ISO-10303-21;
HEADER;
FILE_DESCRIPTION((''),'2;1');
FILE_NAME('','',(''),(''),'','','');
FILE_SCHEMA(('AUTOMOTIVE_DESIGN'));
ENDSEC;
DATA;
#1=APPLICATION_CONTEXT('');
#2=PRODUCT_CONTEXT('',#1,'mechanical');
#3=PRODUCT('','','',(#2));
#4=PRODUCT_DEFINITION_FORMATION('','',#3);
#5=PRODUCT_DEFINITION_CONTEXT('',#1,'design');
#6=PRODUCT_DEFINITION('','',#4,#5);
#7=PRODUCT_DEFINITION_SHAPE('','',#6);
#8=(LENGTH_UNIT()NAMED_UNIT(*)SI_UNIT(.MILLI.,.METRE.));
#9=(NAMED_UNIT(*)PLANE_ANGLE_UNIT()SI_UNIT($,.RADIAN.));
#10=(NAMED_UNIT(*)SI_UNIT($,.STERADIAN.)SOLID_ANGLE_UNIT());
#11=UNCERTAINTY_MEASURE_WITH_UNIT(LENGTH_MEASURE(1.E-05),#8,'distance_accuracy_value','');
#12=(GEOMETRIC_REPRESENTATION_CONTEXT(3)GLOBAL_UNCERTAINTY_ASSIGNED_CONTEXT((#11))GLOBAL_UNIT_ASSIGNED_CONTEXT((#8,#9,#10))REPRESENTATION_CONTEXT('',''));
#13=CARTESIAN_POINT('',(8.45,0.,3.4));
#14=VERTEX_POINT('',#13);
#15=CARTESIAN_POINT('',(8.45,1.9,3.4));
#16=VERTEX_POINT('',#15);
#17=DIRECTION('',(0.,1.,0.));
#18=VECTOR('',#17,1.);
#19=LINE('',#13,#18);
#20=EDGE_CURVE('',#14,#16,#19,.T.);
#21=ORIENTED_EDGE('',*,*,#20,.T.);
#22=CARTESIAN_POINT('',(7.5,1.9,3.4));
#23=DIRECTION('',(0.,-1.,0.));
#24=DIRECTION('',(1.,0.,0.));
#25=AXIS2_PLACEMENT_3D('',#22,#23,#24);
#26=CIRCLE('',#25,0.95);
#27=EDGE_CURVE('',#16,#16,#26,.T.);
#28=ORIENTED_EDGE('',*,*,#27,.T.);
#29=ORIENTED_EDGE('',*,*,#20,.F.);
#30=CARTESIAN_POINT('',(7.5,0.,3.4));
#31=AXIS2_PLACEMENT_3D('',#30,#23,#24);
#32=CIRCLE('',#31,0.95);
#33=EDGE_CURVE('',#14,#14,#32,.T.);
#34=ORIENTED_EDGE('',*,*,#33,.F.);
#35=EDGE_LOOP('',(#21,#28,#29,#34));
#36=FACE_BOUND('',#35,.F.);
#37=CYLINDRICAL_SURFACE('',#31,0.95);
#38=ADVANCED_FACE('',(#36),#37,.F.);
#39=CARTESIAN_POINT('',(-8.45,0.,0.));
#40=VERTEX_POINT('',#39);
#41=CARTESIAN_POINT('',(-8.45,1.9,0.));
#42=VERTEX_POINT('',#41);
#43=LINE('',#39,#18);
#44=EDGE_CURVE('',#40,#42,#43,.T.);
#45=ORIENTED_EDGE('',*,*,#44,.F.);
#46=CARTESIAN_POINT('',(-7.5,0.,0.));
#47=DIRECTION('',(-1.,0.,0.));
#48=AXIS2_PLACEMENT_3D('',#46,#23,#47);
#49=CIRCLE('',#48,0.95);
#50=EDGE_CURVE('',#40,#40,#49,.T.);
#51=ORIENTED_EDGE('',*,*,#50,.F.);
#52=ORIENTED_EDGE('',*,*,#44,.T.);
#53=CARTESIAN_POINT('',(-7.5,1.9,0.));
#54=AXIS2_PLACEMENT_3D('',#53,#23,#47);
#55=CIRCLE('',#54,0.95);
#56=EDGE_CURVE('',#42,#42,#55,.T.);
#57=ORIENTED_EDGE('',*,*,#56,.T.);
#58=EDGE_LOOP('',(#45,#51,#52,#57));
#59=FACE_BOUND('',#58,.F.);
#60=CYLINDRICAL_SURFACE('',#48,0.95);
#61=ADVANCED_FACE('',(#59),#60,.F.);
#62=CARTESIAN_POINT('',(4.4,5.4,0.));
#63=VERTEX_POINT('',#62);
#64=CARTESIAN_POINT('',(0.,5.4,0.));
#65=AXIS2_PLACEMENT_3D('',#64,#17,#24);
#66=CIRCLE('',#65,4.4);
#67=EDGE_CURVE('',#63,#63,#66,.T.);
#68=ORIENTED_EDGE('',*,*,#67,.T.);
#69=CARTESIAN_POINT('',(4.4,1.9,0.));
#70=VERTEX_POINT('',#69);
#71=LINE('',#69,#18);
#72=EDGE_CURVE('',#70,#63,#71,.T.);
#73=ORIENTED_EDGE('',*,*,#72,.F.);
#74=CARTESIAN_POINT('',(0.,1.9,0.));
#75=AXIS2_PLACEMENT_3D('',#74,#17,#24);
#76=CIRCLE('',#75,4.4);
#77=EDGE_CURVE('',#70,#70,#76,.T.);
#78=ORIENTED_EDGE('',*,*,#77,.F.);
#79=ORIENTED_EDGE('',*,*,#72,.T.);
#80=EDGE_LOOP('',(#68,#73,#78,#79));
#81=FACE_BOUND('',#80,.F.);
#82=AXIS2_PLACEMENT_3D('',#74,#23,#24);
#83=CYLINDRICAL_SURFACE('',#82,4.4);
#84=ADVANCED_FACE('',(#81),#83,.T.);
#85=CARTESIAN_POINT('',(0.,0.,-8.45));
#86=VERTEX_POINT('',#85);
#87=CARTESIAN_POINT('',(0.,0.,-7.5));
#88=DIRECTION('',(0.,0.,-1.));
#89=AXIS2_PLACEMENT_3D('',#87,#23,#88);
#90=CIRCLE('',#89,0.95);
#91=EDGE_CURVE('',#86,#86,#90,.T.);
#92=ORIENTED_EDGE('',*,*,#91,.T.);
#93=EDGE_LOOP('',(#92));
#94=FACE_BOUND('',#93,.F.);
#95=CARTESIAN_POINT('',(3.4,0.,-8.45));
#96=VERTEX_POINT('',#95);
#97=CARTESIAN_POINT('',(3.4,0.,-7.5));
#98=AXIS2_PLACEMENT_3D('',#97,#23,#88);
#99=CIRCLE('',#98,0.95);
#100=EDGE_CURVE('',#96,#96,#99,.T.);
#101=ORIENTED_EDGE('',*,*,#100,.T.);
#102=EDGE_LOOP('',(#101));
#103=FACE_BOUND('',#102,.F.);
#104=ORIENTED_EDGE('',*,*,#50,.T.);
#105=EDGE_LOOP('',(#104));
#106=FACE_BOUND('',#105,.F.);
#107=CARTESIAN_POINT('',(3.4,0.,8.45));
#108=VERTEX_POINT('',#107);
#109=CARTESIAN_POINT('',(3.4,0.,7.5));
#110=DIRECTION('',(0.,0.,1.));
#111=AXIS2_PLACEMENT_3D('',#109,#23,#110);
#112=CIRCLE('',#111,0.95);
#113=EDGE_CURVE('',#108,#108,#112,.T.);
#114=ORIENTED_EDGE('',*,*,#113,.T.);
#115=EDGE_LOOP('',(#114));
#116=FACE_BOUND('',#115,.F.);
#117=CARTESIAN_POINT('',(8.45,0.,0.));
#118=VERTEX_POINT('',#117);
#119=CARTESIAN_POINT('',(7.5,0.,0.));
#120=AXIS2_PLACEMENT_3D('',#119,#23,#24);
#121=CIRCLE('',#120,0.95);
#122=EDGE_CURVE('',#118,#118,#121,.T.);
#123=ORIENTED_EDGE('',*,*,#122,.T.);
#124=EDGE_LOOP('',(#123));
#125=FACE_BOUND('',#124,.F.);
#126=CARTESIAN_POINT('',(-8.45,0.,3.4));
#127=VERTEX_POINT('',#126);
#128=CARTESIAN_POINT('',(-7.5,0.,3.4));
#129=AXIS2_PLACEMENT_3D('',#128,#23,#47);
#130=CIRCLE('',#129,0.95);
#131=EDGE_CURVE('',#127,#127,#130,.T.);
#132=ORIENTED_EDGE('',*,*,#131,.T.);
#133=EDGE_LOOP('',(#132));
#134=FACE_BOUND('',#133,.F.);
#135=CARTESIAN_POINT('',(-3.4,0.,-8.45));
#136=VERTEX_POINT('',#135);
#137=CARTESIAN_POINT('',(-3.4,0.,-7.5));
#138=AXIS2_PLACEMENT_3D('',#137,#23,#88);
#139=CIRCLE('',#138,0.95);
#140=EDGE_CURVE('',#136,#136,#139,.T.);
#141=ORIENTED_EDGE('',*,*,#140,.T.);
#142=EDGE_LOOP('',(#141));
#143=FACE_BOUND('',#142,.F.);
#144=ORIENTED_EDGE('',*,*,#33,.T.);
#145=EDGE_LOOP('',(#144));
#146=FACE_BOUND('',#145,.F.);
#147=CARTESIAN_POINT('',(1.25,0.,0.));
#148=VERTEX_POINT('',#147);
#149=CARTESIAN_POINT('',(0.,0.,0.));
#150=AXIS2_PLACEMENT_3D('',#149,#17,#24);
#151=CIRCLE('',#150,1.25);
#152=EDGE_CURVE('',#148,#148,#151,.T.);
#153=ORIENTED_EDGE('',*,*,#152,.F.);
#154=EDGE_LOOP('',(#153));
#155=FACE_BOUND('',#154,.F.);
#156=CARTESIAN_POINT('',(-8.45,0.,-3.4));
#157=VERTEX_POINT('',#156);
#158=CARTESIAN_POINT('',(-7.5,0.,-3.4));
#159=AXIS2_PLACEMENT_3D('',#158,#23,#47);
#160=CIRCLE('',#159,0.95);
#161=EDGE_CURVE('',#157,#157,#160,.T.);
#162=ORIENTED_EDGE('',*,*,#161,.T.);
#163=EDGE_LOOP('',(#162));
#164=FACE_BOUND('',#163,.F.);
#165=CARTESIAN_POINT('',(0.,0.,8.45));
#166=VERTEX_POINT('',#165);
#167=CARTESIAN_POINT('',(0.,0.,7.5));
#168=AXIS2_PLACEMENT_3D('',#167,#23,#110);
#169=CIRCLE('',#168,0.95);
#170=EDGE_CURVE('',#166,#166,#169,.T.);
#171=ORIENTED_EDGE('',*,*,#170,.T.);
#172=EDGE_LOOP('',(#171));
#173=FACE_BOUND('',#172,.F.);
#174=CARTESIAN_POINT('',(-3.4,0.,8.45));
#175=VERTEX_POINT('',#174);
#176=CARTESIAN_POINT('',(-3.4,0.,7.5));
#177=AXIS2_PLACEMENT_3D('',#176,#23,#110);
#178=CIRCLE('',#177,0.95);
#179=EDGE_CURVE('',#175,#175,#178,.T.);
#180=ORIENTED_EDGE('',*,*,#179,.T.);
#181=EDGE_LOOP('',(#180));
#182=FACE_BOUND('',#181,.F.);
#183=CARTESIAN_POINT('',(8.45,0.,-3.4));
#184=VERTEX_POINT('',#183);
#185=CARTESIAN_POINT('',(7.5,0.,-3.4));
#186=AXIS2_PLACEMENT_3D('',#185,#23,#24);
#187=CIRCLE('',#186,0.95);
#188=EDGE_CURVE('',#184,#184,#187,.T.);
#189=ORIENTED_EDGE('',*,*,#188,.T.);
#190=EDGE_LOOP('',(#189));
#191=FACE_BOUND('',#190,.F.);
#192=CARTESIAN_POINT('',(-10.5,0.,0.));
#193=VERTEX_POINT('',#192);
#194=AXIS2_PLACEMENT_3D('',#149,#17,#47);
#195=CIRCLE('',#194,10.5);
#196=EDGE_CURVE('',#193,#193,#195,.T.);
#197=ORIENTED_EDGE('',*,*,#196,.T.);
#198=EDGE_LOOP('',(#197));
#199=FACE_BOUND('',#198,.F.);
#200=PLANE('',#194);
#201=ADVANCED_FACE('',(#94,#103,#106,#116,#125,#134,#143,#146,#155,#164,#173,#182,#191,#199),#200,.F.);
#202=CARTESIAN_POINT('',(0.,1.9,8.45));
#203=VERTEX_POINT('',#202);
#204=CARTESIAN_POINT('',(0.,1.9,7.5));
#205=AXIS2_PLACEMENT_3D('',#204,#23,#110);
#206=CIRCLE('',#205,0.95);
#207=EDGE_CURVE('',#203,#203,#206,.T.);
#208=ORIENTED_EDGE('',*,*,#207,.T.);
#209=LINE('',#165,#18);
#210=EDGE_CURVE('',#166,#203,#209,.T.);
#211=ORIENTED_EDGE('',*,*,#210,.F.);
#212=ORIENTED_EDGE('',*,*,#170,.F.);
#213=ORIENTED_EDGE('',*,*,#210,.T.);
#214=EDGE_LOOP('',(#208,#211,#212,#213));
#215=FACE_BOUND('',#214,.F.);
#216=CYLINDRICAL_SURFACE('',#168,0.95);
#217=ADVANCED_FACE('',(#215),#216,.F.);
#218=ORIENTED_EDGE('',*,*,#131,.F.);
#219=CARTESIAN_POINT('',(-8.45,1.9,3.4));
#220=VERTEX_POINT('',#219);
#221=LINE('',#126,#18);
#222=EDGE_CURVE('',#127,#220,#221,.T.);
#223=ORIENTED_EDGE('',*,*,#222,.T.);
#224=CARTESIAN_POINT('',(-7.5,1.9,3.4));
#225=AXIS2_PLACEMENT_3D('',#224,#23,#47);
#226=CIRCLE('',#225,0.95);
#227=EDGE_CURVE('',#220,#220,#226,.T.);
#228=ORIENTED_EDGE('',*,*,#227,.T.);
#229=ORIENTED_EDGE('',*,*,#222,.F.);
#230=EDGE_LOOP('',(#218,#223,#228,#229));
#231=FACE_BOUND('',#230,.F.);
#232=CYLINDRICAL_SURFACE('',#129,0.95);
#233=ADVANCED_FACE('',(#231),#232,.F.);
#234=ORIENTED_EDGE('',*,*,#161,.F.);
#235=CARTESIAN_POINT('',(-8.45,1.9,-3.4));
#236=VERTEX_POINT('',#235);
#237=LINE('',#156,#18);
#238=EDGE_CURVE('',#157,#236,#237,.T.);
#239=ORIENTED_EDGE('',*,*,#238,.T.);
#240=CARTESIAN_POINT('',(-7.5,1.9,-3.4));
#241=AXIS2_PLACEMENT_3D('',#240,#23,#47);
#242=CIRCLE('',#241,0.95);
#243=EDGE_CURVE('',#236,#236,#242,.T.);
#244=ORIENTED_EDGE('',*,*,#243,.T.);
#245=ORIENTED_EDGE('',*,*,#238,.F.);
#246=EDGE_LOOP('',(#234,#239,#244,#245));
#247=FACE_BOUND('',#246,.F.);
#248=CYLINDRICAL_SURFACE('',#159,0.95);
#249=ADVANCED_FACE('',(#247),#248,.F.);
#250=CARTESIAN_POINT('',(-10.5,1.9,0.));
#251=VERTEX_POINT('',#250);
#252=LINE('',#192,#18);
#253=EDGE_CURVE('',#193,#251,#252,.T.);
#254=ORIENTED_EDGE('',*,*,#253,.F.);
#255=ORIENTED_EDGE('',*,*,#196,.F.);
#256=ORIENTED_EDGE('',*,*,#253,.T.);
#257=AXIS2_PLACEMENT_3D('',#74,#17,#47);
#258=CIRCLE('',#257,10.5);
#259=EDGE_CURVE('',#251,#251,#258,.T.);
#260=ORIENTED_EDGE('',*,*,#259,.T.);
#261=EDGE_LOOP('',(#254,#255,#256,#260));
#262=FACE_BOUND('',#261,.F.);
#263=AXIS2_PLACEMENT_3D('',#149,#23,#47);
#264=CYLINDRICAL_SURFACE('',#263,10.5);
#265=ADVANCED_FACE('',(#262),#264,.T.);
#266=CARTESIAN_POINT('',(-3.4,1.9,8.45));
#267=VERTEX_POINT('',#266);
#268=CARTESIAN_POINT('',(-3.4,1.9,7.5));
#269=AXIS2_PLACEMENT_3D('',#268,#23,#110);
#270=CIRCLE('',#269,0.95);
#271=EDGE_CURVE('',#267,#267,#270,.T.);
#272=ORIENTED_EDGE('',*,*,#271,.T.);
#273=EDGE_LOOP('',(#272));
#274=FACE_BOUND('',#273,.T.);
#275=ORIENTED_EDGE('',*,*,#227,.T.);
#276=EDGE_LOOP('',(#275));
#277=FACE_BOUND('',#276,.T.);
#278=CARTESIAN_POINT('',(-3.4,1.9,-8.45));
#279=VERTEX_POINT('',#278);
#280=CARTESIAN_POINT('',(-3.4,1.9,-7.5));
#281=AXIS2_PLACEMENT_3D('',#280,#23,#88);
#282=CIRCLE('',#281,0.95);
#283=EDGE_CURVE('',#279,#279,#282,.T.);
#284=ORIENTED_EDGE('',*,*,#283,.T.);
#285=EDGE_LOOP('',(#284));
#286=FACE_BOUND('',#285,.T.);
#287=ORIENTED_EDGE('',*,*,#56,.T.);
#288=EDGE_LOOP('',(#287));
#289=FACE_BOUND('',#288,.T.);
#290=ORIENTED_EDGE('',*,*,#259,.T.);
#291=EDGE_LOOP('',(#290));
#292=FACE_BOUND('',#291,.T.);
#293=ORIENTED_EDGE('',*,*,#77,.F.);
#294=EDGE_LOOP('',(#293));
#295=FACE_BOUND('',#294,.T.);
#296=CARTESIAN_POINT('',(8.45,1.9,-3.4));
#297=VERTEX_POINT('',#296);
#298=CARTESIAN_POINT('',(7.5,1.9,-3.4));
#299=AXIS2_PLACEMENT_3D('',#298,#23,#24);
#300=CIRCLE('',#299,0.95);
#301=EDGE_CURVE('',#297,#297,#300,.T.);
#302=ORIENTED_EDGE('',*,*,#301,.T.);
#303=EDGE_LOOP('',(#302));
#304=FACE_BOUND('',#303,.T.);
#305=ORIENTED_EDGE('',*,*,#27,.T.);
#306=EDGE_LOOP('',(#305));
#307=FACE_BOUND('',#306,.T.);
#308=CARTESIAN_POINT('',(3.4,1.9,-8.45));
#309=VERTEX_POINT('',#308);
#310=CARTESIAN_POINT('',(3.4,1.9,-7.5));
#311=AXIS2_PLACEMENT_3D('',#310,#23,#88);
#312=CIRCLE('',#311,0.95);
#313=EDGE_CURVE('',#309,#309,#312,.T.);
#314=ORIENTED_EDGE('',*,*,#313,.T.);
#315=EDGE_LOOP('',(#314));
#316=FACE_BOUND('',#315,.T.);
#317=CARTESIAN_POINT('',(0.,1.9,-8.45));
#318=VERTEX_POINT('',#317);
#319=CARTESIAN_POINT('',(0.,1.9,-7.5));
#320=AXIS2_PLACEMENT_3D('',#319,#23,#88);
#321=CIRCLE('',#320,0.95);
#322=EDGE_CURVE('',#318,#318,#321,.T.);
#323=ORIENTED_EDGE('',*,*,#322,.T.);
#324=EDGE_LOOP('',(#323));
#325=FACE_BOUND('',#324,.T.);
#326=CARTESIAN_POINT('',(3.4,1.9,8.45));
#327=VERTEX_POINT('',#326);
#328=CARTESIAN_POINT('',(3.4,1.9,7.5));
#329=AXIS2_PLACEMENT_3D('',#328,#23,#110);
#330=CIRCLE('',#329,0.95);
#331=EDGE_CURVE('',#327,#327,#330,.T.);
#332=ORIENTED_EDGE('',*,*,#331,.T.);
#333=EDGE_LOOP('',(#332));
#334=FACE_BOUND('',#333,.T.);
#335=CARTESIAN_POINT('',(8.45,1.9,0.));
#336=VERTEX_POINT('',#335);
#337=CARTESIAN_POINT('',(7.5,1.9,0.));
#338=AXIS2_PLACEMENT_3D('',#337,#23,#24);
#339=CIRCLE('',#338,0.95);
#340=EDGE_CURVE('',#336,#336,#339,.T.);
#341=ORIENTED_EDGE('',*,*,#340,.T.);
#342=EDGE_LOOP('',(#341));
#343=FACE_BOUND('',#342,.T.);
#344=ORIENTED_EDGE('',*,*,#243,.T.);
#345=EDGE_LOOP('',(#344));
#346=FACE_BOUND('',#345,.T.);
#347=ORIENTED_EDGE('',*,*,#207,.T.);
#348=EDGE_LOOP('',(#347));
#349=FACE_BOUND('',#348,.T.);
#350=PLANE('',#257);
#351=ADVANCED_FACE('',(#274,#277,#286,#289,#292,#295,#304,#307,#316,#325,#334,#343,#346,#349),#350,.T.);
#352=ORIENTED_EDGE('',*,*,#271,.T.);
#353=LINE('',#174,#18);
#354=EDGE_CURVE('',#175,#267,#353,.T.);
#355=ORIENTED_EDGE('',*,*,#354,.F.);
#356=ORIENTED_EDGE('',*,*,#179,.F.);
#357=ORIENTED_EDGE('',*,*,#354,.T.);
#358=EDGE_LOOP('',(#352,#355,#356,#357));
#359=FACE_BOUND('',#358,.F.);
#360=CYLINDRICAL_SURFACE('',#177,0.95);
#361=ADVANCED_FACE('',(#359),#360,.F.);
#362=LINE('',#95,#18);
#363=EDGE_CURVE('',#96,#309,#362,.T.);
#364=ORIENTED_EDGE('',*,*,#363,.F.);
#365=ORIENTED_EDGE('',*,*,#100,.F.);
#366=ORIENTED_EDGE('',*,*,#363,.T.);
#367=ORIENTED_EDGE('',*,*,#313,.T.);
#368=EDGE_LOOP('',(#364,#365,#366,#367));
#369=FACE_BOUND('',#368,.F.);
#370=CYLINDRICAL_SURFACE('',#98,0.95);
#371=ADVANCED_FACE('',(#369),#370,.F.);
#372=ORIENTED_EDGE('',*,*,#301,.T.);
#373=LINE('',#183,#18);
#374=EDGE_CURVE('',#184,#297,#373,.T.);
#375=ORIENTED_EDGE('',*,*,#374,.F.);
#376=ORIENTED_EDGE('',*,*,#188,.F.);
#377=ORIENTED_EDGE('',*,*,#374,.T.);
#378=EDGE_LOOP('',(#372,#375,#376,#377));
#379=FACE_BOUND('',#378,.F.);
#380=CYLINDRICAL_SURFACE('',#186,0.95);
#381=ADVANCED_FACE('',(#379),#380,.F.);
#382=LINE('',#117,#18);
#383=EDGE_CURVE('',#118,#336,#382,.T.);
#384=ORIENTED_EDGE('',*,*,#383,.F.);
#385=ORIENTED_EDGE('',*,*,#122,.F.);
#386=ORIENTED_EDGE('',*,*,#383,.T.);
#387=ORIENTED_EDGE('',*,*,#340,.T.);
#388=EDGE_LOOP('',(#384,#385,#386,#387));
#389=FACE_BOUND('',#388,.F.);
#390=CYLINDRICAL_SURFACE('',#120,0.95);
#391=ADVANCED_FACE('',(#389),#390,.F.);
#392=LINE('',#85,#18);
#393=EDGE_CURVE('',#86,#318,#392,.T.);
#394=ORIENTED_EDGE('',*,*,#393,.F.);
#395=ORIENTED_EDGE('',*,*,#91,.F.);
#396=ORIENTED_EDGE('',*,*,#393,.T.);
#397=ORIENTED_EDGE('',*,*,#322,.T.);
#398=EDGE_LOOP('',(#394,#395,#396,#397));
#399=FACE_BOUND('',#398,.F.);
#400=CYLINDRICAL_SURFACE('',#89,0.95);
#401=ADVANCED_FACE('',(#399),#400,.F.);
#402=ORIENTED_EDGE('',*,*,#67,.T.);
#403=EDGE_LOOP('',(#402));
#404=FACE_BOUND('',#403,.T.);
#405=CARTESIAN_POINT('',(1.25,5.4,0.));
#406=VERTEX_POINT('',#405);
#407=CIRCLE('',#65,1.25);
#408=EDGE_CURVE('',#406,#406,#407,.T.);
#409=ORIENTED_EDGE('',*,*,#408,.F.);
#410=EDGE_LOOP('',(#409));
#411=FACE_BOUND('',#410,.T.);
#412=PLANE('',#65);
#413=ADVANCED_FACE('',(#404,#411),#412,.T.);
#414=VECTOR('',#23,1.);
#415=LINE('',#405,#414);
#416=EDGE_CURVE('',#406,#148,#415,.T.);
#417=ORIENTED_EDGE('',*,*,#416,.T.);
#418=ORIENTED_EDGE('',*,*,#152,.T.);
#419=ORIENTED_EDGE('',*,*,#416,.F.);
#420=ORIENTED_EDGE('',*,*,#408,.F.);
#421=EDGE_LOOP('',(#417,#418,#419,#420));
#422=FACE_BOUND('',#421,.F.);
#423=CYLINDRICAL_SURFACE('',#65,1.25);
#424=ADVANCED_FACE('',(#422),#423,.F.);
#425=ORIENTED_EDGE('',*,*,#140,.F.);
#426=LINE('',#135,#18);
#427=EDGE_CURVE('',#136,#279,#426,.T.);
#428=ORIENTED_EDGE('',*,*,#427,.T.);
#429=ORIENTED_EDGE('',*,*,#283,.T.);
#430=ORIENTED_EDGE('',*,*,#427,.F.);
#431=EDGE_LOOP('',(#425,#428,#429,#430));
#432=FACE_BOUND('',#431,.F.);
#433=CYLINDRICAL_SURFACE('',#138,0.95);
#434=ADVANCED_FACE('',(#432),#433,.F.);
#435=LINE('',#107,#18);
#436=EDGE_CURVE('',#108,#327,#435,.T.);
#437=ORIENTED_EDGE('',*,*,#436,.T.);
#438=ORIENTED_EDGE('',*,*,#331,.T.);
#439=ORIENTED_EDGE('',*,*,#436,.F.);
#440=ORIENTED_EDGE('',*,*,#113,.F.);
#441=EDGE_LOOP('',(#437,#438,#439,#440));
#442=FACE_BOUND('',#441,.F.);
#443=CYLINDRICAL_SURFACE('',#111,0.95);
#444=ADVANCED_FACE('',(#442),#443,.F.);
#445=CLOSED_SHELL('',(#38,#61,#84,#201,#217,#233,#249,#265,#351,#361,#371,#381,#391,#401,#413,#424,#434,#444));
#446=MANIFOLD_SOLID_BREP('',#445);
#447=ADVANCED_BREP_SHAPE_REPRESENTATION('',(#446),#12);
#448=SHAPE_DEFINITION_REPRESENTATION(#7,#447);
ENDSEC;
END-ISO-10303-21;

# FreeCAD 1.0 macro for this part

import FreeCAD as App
import Part
import Sketcher

doc = App.newDocument("Part")
body = doc.addObject("PartDesign::Body", "Body")

# Sketch on XZ plane
sketch1 = body.newObject("Sketcher::SketchObject", "Sketch")
sketch1.AttachmentSupport = (doc.getObject("XZ_Plane"), [""])
sketch1.MapMode = "FlatFace"
sketch1.addGeometry(Part.Circle(App.Vector(0, 0, 0), App.Vector(0, 0, 1), 10.5), False)
sketch1.addConstraint(Sketcher.Constraint("Coincident", 0, 3, -1, 1))
sketch1.addConstraint(Sketcher.Constraint("Diameter", 0, 21.0))
pad1 = body.newObject("PartDesign::Pad", "Pad")
pad1.Profile = sketch1
pad1.Length = 1.9
pad1.Reversed = True

# Sketch on XZ plane
sketch2 = body.newObject("Sketcher::SketchObject", "Sketch001")
sketch2.AttachmentSupport = (doc.getObject("XZ_Plane"), [""])
sketch2.MapMode = "FlatFace"
sketch2.AttachmentOffset = App.Placement(App.Vector(0, 0, -1.9), App.Rotation())
sketch2.addGeometry(Part.Circle(App.Vector(0, 0, 0), App.Vector(0, 0, 1), 4.4), False)
sketch2.addConstraint(Sketcher.Constraint("Coincident", 0, 3, -1, 1))
sketch2.addConstraint(Sketcher.Constraint("Diameter", 0, 8.8))
pad2 = body.newObject("PartDesign::Pad", "Pad001")
pad2.Profile = sketch2
pad2.Length = 3.5
pad2.Reversed = True

# Sketch on XZ plane
sketch3 = body.newObject("Sketcher::SketchObject", "Sketch002")
sketch3.AttachmentSupport = (doc.getObject("XZ_Plane"), [""])
sketch3.MapMode = "FlatFace"
sketch3.AttachmentOffset = App.Placement(App.Vector(0, 0, -5.4), App.Rotation())
sketch3.addGeometry(Part.Circle(App.Vector(0, 0, 0), App.Vector(0, 0, 1), 1.25), False)
sketch3.addConstraint(Sketcher.Constraint("Coincident", 0, 3, -1, 1))
sketch3.addConstraint(Sketcher.Constraint("Diameter", 0, 2.5))
pocket1 = body.newObject("PartDesign::Pocket", "Pocket")
pocket1.Profile = sketch3
pocket1.Type = "ThroughAll"
pocket1.Reversed = True

# Sketch on XZ plane
sketch4 = body.newObject("Sketcher::SketchObject", "Sketch003")
sketch4.AttachmentSupport = (doc.getObject("XZ_Plane"), [""])
sketch4.MapMode = "FlatFace"
sketch4.addGeometry(Part.Circle(App.Vector(7.5, 0, 0), App.Vector(0, 0, 1), 0.95), False)
sketch4.addGeometry(Part.Circle(App.Vector(7.5, -3.4, 0), App.Vector(0, 0, 1), 0.95), False)
sketch4.addGeometry(Part.Circle(App.Vector(7.5, 3.4, 0), App.Vector(0, 0, 1), 0.95), False)
sketch4.addConstraint(Sketcher.Constraint("Equal", 0, 1))
sketch4.addConstraint(Sketcher.Constraint("Equal", 1, 2))
sketch4.addConstraint(Sketcher.Constraint("Symmetric", 1, 3, 2, 3, -1))
sketch4.addConstraint(Sketcher.Constraint("PointOnObject", 0, 3, -1))
sketch4.addConstraint(Sketcher.Constraint("Vertical", 0, 3, 1, 3))
sketch4.addConstraint(Sketcher.Constraint("Diameter", 0, 1.9))
sketch4.addConstraint(Sketcher.Constraint("DistanceX", -1, 1, 0, 3, 7.5))
sketch4.addConstraint(Sketcher.Constraint("DistanceY", 1, 3, -1, 1, 3.4))
pocket2 = body.newObject("PartDesign::Pocket", "Pocket001")
pocket2.Profile = sketch4
pocket2.Type = "ThroughAll"
doc.recompute()

polarpattern = body.newObject("PartDesign::PolarPattern", "PolarPattern")
polarpattern.Originals = [pocket2]
polarpattern.Axis = (doc.getObject("Y_Axis"), [""])
polarpattern.Angle = 360
polarpattern.Occurrences = 4
body.Tip = polarpattern

doc.recompute()
